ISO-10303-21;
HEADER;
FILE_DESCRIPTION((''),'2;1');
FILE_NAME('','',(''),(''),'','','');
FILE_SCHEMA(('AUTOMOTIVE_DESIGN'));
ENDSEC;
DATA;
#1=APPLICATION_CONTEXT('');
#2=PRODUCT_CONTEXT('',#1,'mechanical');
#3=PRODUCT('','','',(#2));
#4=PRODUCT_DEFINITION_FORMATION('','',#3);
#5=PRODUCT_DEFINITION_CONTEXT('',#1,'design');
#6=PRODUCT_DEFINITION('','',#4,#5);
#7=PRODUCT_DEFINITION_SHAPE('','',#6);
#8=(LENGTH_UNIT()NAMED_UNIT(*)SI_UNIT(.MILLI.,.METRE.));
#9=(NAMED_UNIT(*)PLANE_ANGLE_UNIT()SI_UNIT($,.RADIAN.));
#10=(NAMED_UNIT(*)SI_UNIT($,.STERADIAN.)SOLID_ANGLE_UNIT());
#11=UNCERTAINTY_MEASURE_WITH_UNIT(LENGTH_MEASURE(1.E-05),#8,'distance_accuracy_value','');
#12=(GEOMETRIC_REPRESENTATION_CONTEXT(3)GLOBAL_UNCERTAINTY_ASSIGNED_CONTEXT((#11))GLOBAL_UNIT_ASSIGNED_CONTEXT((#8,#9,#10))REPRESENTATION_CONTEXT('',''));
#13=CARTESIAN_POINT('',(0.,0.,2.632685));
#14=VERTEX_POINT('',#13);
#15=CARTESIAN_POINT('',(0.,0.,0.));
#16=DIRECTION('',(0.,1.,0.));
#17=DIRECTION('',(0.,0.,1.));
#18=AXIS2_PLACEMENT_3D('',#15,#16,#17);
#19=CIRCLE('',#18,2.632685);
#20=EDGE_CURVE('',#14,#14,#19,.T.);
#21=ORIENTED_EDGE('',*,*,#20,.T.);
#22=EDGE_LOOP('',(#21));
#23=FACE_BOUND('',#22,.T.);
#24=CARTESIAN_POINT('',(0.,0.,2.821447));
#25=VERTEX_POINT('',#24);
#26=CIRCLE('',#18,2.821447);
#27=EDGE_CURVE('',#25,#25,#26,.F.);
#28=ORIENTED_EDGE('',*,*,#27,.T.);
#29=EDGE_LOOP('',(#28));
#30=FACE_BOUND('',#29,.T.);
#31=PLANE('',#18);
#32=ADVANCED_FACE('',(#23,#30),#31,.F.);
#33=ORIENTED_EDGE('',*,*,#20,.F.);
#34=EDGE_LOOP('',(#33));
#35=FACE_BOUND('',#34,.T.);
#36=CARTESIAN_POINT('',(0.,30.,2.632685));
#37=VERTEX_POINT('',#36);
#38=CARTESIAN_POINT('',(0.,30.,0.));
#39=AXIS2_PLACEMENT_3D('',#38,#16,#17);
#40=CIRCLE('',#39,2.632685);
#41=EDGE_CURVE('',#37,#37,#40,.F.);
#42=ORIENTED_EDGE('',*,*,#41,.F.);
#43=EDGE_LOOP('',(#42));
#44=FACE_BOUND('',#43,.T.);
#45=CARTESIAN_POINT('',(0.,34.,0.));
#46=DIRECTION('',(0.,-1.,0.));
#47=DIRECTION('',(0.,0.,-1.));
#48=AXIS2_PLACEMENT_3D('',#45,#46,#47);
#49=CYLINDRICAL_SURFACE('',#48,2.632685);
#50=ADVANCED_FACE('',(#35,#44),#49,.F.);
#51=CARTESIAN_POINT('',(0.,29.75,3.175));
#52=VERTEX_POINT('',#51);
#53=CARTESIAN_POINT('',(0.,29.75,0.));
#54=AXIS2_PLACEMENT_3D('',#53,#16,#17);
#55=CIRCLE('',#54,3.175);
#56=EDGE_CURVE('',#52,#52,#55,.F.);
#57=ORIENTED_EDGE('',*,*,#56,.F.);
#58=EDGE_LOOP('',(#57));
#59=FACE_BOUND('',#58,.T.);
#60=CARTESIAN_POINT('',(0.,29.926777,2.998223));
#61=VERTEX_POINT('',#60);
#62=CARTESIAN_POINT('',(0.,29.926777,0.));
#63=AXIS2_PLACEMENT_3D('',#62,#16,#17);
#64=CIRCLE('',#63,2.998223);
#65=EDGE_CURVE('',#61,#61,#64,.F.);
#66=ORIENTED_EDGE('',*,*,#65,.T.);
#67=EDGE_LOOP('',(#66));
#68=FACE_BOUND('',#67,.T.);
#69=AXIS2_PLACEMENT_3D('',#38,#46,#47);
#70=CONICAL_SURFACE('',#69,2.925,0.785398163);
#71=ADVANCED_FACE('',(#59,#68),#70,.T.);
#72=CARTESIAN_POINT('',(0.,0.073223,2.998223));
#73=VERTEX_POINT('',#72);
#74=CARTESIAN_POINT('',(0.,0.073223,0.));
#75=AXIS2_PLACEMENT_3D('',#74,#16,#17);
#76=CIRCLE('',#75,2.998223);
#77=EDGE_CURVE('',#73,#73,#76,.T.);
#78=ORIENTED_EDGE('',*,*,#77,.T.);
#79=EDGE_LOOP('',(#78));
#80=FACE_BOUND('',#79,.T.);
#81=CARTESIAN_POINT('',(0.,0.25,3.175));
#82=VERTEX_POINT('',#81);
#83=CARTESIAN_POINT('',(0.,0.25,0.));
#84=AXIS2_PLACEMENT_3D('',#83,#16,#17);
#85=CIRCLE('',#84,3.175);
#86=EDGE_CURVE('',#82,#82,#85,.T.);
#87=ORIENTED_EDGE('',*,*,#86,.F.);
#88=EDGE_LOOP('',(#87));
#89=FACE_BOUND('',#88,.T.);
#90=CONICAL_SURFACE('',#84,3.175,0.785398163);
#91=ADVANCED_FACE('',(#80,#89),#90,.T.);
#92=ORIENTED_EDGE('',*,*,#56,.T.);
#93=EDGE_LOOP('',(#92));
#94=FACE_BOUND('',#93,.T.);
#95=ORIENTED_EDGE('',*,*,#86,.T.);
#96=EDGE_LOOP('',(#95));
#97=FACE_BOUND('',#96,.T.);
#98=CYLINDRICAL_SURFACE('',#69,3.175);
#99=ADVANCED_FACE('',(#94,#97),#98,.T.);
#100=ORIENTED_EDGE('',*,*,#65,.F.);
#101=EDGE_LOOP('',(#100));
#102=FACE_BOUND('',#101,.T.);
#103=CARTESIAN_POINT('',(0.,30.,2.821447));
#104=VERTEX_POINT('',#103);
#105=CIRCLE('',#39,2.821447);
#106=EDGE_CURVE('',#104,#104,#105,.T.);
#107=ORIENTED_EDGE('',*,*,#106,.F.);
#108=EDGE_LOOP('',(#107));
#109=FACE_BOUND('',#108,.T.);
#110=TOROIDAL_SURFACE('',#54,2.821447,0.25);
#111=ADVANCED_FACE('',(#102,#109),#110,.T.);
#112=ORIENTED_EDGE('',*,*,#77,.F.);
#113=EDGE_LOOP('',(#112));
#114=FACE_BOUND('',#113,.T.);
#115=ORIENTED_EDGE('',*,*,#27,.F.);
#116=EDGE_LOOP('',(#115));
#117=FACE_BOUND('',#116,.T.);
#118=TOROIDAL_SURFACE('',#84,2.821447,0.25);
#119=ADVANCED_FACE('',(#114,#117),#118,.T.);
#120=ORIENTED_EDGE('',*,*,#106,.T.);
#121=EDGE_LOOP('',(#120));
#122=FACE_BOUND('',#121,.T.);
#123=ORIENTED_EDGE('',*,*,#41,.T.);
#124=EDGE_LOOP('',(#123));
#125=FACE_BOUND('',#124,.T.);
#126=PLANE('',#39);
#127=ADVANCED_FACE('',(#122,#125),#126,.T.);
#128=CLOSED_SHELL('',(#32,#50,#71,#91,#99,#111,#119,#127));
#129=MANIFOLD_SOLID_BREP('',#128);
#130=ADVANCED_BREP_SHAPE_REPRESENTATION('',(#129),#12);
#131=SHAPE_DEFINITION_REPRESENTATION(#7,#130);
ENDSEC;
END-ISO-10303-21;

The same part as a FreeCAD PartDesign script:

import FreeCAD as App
import Part
import Sketcher

V = App.Vector


def edges_at(feature, points):
    """Names of the edges that pass closest to the given points."""
    edges = feature.Shape.Edges
    near = lambda p: min(range(len(edges)), key=lambda i: edges[i].distToShape(Part.Vertex(*p))[0])
    return sorted({f"Edge{near(p) + 1}" for p in points})

doc = App.newDocument("Part")
body = doc.addObject("PartDesign::Body", "Body")

sketch1 = body.newObject("Sketcher::SketchObject", "Sketch")
sketch1.AttachmentSupport = (doc.getObject("XZ_Plane"), [""])
sketch1.MapMode = "FlatFace"
sketch1.addGeometry(Part.Circle(V(0, 0, 0), V(0, 0, 1), 3.2), False)
sketch1.addConstraint([
    Sketcher.Constraint("Coincident", 0, 3, -1, 1),
    Sketcher.Constraint("Diameter", 0, 6.35),
])
pad1 = body.newObject("PartDesign::Pad", "Pad")
pad1.Profile = sketch1
pad1.Length = 30
pad1.Reversed = True
doc.recompute()

chamfer = body.newObject("PartDesign::Chamfer", "Chamfer")
chamfer.Base = (pad1, edges_at(pad1, [(-3.175, 30, 0)]))
chamfer.Size = 0.25
doc.recompute()

chamfer2 = body.newObject("PartDesign::Chamfer", "Chamfer001")
chamfer2.Base = (chamfer, edges_at(chamfer, [(-3.175, 0, 0)]))
chamfer2.Size = 0.25

sketch2 = body.newObject("Sketcher::SketchObject", "Sketch001")
sketch2.AttachmentSupport = (doc.getObject("XZ_Plane"), [""])
sketch2.MapMode = "FlatFace"
sketch2.addGeometry(Part.Circle(V(0, 0, 0), V(0, 0, 1), 2.6), False)
sketch2.addConstraint([
    Sketcher.Constraint("Coincident", 0, 3, -1, 1),
    Sketcher.Constraint("Diameter", 0, 5.265369),
])
pocket1 = body.newObject("PartDesign::Pocket", "Pocket")
pocket1.Profile = sketch2
pocket1.Length = 34
doc.recompute()

fillet = body.newObject("PartDesign::Fillet", "Fillet")
fillet.Base = (pocket1, edges_at(pocket1, [(-2.925, 30, 0)]))
fillet.Radius = 0.25
doc.recompute()

fillet2 = body.newObject("PartDesign::Fillet", "Fillet001")
fillet2.Base = (fillet, edges_at(fillet, [(-2.925, 0, 0)]))
fillet2.Radius = 0.25

doc.recompute()
